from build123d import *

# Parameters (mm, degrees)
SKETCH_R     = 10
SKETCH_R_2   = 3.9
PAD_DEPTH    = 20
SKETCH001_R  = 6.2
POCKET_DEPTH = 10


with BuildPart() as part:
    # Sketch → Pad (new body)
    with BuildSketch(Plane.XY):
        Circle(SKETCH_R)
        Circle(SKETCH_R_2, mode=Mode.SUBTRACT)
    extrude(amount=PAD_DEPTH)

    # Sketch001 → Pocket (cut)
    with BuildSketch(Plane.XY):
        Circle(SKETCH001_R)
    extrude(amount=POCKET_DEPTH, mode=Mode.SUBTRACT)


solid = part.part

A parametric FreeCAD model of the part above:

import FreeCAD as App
import Part
import Sketcher
Q = App.Units.Quantity

doc = App.newDocument("Part")
body = doc.addObject("PartDesign::Body", "Body")

# Sketch on XY plane
sketch1 = doc.addObject("Sketcher::SketchObject", "Sketch")
body.addObject(sketch1)
sketch1.AttachmentSupport = (doc.XY_Plane, [""])
sketch1.MapMode = "FlatFace"
sketch1.addGeometry([
    Part.Circle(App.Vector(0, 0, 0), App.Vector(0, 0, 1), 10),
    Part.Circle(App.Vector(0, 0, 0), App.Vector(0, 0, 1), 3.9),
], False)
sketch1.addConstraint([
    Sketcher.Constraint("Coincident", 0, 3, -1, 1),
    Sketcher.Constraint("Coincident", 1, 3, -1, 1),
    Sketcher.Constraint("Diameter", 0, Q("20 mm")),
    Sketcher.Constraint("Diameter", 1, Q("7.8 mm")),
])
pad1 = doc.addObject("PartDesign::Pad", "Pad")
body.addObject(pad1)
pad1.Profile = sketch1
pad1.Length = 20

# Sketch on XY plane
sketch2 = doc.addObject("Sketcher::SketchObject", "Sketch001")
body.addObject(sketch2)
sketch2.AttachmentSupport = (doc.XY_Plane, [""])
sketch2.MapMode = "FlatFace"
sketch2.addGeometry(Part.Circle(App.Vector(0, 0, 0), App.Vector(0, 0, 1), 6.2), False)
sketch2.addConstraint([
    Sketcher.Constraint("Coincident", 0, 3, -1, 1),
    Sketcher.Constraint("Diameter", 0, Q("12.4 mm")),
])
pocket1 = doc.addObject("PartDesign::Pocket", "Pocket")
body.addObject(pocket1)
pocket1.Profile = sketch2
pocket1.Length = 10
pocket1.Reversed = True

doc.recompute()
